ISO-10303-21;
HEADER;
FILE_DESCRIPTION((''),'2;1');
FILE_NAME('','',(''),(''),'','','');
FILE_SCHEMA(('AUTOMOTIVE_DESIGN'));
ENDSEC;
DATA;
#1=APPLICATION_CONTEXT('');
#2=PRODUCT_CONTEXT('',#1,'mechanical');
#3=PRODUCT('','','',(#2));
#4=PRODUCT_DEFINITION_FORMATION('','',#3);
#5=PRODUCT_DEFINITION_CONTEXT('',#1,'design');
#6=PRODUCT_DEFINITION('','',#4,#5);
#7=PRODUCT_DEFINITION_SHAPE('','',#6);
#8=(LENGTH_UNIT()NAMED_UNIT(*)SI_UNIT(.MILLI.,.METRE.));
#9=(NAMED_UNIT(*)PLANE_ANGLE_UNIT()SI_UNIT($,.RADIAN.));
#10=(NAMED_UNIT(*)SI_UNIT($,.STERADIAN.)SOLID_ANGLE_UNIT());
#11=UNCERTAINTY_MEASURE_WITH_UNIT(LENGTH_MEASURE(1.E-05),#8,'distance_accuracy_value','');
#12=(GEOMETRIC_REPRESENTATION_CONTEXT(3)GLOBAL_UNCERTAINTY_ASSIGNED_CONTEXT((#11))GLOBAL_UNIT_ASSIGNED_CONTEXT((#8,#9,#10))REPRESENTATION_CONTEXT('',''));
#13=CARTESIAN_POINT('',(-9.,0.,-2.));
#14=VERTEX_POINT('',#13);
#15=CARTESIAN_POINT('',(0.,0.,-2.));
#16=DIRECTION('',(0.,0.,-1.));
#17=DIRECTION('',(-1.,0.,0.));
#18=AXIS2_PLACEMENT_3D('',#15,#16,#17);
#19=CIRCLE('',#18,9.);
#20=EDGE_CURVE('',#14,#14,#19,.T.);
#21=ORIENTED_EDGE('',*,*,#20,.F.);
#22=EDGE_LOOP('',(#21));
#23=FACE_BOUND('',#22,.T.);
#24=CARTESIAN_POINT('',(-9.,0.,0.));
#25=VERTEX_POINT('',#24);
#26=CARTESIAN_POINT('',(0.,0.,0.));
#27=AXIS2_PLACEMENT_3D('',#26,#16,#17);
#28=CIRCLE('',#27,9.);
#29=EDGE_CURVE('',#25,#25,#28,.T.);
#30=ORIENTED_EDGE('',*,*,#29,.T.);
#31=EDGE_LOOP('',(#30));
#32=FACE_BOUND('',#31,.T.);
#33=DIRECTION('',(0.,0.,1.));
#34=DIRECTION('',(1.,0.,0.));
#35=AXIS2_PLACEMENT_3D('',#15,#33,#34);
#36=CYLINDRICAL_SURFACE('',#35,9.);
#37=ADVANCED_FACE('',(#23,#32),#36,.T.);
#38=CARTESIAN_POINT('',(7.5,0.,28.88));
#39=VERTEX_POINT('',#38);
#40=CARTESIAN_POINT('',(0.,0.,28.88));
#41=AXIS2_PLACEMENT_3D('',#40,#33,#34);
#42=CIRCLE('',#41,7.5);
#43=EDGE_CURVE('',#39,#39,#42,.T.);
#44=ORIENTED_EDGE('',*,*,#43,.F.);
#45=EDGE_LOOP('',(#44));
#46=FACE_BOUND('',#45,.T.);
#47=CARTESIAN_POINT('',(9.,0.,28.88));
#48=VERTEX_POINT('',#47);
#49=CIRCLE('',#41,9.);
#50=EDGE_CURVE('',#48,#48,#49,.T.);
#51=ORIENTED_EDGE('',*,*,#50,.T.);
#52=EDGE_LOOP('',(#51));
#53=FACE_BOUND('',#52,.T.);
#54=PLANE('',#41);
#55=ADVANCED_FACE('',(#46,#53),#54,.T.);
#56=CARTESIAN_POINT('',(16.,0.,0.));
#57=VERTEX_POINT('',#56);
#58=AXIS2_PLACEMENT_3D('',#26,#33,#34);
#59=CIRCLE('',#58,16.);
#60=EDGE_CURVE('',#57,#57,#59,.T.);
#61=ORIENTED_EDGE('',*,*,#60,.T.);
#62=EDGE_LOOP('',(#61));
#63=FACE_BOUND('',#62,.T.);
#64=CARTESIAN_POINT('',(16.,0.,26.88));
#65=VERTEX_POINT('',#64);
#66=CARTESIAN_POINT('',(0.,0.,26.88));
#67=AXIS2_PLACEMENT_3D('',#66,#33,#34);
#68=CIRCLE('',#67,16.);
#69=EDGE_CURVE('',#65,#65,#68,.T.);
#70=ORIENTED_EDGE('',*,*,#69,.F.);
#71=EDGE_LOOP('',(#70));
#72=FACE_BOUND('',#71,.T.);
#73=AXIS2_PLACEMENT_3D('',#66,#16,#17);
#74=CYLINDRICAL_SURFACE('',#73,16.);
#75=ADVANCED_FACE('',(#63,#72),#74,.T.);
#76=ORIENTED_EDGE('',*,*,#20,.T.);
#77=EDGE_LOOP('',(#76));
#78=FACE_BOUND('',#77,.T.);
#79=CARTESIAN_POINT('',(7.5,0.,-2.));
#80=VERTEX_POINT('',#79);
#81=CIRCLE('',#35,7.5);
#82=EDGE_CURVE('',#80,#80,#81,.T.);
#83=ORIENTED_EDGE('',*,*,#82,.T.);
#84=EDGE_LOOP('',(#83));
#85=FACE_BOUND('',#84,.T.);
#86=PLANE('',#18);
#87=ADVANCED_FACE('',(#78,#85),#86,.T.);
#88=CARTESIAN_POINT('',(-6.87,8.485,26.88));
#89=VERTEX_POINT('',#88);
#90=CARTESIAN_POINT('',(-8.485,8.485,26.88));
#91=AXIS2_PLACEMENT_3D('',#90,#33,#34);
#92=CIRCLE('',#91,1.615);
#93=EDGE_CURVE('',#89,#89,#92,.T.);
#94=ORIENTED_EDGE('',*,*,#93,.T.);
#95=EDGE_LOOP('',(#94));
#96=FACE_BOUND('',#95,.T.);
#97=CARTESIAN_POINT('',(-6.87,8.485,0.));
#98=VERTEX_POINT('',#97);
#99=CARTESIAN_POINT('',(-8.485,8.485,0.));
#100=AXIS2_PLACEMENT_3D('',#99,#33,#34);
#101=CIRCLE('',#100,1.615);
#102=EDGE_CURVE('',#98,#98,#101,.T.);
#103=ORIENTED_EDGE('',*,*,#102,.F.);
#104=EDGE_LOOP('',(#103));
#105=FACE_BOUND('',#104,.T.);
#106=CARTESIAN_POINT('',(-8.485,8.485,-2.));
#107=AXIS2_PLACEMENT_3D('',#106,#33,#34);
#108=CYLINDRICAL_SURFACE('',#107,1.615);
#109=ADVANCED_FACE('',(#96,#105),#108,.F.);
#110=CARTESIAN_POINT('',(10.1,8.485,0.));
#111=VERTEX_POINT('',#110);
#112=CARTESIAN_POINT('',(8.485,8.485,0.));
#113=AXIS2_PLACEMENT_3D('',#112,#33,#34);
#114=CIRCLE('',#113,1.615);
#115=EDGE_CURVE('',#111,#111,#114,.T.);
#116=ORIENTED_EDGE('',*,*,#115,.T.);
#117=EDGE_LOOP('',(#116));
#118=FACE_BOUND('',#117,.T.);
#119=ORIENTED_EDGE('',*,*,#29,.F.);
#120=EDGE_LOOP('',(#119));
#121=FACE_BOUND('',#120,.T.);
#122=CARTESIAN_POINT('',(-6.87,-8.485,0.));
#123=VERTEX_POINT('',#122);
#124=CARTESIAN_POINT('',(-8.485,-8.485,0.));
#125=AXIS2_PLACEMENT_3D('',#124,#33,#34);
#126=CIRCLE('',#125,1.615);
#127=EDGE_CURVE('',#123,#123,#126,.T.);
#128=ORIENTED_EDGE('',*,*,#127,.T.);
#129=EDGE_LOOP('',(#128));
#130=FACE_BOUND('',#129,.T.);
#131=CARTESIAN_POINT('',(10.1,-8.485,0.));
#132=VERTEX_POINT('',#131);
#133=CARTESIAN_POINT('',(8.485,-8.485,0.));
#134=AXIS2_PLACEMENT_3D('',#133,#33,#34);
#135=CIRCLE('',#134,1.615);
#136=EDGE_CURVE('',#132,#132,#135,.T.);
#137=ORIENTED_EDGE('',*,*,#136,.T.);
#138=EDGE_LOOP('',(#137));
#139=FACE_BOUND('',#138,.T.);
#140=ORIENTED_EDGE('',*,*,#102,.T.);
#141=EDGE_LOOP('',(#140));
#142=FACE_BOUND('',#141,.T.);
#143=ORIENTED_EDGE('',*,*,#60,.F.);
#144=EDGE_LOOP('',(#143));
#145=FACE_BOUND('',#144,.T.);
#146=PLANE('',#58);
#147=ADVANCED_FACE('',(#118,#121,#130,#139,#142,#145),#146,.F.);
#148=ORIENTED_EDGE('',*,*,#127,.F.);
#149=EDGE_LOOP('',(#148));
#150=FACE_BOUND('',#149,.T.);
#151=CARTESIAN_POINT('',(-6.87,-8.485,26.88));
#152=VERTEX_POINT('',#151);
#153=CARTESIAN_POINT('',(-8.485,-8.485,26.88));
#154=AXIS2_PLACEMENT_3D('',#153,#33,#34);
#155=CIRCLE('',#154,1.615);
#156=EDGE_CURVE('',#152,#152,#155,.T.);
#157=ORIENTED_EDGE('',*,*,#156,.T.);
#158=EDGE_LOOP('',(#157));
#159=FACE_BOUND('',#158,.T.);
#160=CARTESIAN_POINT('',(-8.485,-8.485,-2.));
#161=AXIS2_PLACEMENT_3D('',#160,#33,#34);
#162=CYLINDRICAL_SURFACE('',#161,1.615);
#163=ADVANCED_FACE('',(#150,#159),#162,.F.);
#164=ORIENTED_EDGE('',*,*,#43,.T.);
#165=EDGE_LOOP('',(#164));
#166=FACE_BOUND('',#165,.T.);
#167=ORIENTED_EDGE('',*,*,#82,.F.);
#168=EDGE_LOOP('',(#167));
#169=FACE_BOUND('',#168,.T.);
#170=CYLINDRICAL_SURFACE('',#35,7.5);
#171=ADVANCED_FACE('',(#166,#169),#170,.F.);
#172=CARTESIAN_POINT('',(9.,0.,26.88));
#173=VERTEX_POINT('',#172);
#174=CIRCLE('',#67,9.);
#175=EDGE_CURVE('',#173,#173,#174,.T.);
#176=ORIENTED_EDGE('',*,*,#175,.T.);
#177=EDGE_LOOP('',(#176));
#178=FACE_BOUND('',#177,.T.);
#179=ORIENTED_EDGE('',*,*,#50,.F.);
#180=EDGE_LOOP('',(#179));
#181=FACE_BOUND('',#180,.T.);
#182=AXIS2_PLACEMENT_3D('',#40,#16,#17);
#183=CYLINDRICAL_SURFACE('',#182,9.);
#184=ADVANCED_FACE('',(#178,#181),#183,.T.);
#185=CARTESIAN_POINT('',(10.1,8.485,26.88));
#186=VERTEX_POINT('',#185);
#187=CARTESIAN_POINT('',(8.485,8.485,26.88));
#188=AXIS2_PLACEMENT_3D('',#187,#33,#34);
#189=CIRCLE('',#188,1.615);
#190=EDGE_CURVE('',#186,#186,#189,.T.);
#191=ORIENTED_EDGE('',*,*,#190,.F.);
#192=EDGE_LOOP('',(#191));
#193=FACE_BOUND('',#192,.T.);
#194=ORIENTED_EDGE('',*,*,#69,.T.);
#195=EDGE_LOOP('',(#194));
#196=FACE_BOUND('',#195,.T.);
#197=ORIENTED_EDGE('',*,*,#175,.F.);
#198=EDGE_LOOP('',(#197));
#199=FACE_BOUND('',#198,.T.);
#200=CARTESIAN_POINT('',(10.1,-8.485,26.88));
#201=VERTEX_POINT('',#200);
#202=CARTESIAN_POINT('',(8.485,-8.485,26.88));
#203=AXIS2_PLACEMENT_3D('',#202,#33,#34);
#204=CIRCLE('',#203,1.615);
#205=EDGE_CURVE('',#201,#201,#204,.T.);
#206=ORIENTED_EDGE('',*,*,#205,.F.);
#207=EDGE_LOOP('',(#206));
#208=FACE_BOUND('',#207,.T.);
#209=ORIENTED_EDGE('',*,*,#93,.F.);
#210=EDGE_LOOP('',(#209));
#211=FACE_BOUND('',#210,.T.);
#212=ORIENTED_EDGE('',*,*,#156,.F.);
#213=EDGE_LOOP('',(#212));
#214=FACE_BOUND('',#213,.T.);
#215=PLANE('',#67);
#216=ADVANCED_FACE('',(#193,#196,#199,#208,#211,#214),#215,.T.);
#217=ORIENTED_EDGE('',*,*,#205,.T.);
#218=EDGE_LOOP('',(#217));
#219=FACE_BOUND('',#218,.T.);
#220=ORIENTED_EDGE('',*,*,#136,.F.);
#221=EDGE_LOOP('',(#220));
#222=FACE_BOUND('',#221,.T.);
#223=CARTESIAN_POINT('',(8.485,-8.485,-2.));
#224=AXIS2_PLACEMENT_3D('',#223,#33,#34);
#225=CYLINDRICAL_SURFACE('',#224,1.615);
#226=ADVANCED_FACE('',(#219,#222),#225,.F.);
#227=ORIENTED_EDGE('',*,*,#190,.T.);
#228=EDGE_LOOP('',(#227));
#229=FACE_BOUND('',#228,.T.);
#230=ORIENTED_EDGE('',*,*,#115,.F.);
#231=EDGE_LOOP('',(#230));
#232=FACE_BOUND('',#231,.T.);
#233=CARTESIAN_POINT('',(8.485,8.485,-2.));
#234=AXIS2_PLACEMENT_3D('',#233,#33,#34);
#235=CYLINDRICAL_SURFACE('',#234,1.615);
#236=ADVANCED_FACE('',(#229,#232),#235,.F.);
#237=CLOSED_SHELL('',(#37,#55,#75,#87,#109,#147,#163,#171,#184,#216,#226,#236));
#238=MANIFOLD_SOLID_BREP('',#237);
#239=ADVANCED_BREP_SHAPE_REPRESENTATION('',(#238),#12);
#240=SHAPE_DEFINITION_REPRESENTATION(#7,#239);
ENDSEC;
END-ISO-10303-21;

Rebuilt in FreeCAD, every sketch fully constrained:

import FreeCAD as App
import Part
import Sketcher
from FreeCAD import Vector

doc = App.newDocument("Part")
body = doc.addObject("PartDesign::Body", "Body")

# Sketch on XY plane
sketch1 = doc.addObject("Sketcher::SketchObject", "Sketch")
body.addObject(sketch1)
sketch1.AttachmentSupport = (doc.XY_Plane, [""])
sketch1.MapMode = "FlatFace"
sketch1.addGeometry(Part.Circle(Vector(0, 0, 0), Vector(0, 0, 1), 16), False)
sketch1.addConstraint(Sketcher.Constraint("Coincident", 0, 3, -1, 1))
sketch1.addConstraint(Sketcher.Constraint("Diameter", 0, 32.0))
pad1 = doc.addObject("PartDesign::Pad", "Pad")
body.addObject(pad1)
pad1.Profile = sketch1
pad1.Length = 26.88

# Sketch on XY plane
sketch2 = doc.addObject("Sketcher::SketchObject", "Sketch001")
body.addObject(sketch2)
sketch2.AttachmentSupport = (doc.XY_Plane, [""])
sketch2.MapMode = "FlatFace"
sketch2.AttachmentOffset = App.Placement(Vector(0, 0, 26.88), App.Rotation())
sketch2.addGeometry(Part.Circle(Vector(0, 0, 0), Vector(0, 0, 1), 9), False)
sketch2.addConstraint(Sketcher.Constraint("Coincident", 0, 3, -1, 1))
sketch2.addConstraint(Sketcher.Constraint("Diameter", 0, 18.0))
pad2 = doc.addObject("PartDesign::Pad", "Pad001")
body.addObject(pad2)
pad2.Profile = sketch2
pad2.Length = 2

# Sketch on XY plane
sketch3 = doc.addObject("Sketcher::SketchObject", "Sketch002")
body.addObject(sketch3)
sketch3.AttachmentSupport = (doc.XY_Plane, [""])
sketch3.MapMode = "FlatFace"
sketch3.addGeometry(Part.Circle(Vector(0, 0, 0), Vector(0, 0, 1), 9), False)
sketch3.addConstraint(Sketcher.Constraint("Coincident", 0, 3, -1, 1))
sketch3.addConstraint(Sketcher.Constraint("Diameter", 0, 18.0))
pad3 = doc.addObject("PartDesign::Pad", "Pad002")
body.addObject(pad3)
pad3.Profile = sketch3
pad3.Length = 2
pad3.Reversed = True

# Sketch on XY plane
sketch4 = doc.addObject("Sketcher::SketchObject", "Sketch003")
body.addObject(sketch4)
sketch4.AttachmentSupport = (doc.XY_Plane, [""])
sketch4.MapMode = "FlatFace"
sketch4.AttachmentOffset = App.Placement(Vector(0, 0, 28.88), App.Rotation())
sketch4.addGeometry(Part.Circle(Vector(0, 0, 0), Vector(0, 0, 1), 7.5), False)
sketch4.addConstraint(Sketcher.Constraint("Coincident", 0, 3, -1, 1))
sketch4.addConstraint(Sketcher.Constraint("Diameter", 0, 15.0))
pocket1 = doc.addObject("PartDesign::Pocket", "Pocket")
body.addObject(pocket1)
pocket1.Profile = sketch4
pocket1.Type = "ThroughAll"

# Sketch on XY plane
sketch5 = doc.addObject("Sketcher::SketchObject", "Sketch004")
body.addObject(sketch5)
sketch5.AttachmentSupport = (doc.XY_Plane, [""])
sketch5.MapMode = "FlatFace"
sketch5.AttachmentOffset = App.Placement(Vector(0, 0, 26.88), App.Rotation())
sketch5.addGeometry(Part.Circle(Vector(-8.485, 8.485, 0), Vector(0, 0, 1), 1.615), False)
sketch5.addGeometry(Part.Circle(Vector(8.485, 8.485, 0), Vector(0, 0, 1), 1.615), False)
sketch5.addGeometry(Part.Circle(Vector(8.485, -8.485, 0), Vector(0, 0, 1), 1.615), False)
sketch5.addGeometry(Part.Circle(Vector(-8.485, -8.485, 0), Vector(0, 0, 1), 1.615), False)
sketch5.addConstraint(Sketcher.Constraint("Equal", 0, 1))
sketch5.addConstraint(Sketcher.Constraint("Equal", 1, 2))
sketch5.addConstraint(Sketcher.Constraint("Equal", 2, 3))
sketch5.addConstraint(Sketcher.Constraint("Symmetric", 0, 3, 2, 3, -1, 1))
sketch5.addConstraint(Sketcher.Constraint("Symmetric", 1, 3, 3, 3, -1, 1))
sketch5.addConstraint(Sketcher.Constraint("Symmetric", 0, 3, 1, 3, -2))
sketch5.addConstraint(Sketcher.Constraint("Diameter", 0, 3.23))
sketch5.addConstraint(Sketcher.Constraint("DistanceX", 0, 3, 1, 3, 16.97))
sketch5.addConstraint(Sketcher.Constraint("DistanceY", 2, 3, 1, 3, 16.97))
pocket2 = doc.addObject("PartDesign::Pocket", "Pocket001")
body.addObject(pocket2)
pocket2.Profile = sketch5
pocket2.Type = "ThroughAll"

doc.recompute()
